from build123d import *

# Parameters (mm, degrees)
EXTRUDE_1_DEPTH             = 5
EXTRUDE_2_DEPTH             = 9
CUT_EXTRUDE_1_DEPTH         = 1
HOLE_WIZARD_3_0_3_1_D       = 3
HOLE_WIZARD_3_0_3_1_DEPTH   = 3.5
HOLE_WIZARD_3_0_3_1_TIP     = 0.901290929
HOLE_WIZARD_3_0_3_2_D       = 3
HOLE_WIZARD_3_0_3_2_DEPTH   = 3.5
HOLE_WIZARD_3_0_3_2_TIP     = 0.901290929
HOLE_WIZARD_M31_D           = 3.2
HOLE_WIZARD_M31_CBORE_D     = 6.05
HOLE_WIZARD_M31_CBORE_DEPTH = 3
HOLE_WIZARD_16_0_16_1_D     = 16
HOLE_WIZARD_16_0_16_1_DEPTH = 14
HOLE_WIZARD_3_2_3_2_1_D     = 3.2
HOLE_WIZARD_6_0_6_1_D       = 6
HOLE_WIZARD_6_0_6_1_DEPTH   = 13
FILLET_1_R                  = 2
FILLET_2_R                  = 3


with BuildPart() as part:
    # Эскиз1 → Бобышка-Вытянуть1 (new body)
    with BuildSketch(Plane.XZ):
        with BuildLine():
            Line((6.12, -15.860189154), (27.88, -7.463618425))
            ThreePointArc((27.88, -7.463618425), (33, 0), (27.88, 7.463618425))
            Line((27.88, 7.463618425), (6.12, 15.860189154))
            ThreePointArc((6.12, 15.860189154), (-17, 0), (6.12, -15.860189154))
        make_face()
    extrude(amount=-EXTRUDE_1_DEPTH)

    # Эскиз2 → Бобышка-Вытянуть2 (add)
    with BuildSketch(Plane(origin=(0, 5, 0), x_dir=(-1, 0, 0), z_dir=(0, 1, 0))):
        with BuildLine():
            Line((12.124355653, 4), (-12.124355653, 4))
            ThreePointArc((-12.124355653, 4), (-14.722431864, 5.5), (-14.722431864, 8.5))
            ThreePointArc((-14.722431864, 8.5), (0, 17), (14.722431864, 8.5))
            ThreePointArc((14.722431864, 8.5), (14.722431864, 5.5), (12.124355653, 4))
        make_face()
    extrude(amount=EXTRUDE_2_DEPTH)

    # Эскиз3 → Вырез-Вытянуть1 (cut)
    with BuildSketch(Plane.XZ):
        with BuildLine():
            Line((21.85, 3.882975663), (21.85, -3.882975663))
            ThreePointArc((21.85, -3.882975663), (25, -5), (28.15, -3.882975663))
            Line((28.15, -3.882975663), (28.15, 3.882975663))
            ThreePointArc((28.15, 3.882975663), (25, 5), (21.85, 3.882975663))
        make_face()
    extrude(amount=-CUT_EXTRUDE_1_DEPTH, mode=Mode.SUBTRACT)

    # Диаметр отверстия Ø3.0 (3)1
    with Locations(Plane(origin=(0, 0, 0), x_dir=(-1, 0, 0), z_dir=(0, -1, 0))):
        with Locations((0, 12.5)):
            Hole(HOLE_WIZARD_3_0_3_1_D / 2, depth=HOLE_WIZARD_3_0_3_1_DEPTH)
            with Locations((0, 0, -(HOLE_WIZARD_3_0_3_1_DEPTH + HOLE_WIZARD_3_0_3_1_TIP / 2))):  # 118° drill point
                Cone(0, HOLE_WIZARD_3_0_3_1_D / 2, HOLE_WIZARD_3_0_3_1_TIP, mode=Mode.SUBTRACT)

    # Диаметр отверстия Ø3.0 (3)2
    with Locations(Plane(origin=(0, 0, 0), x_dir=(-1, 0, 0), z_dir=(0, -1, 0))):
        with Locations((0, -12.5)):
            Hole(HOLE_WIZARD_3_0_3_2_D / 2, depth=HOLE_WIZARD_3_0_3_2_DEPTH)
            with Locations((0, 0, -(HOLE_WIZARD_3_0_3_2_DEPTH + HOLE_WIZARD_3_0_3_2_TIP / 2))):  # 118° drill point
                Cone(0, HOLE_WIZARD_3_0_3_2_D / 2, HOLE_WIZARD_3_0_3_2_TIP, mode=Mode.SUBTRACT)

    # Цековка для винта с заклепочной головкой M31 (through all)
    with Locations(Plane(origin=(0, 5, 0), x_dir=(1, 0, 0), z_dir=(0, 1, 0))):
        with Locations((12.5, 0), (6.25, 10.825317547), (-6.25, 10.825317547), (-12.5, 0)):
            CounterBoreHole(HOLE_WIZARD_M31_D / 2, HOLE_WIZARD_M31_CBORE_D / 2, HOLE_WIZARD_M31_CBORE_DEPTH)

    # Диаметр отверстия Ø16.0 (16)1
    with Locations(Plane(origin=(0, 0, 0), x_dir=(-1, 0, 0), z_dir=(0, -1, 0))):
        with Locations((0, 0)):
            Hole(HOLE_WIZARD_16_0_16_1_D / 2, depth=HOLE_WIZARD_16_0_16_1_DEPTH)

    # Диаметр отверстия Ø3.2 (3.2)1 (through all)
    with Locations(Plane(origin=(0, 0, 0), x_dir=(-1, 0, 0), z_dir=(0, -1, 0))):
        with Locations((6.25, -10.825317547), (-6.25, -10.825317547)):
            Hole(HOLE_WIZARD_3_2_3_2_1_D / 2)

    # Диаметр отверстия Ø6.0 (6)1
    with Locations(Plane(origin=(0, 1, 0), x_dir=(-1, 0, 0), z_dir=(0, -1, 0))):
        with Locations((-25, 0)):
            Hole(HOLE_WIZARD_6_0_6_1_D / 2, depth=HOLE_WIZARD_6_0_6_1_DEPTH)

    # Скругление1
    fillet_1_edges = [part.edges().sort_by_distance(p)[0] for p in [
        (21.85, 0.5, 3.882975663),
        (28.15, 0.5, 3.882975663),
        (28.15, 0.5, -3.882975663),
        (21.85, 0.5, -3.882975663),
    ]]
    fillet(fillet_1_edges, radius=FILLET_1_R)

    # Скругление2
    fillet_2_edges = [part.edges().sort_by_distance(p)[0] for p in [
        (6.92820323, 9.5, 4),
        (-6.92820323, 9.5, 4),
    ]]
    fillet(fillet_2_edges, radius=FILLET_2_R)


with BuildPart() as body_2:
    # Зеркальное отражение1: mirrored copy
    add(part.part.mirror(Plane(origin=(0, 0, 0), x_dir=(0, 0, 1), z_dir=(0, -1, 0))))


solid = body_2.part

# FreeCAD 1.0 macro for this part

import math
import FreeCAD as App
import Part
import Sketcher
from FreeCAD import Vector
Q = App.Units.Quantity


def edges_at(feature, points):
    """Names of the edges that pass closest to the given points."""
    edges = feature.Shape.Edges
    near = lambda p: min(range(len(edges)), key=lambda i: edges[i].distToShape(Part.Vertex(*p))[0])
    return sorted({f"Edge{near(p) + 1}" for p in points})

doc = App.newDocument("Part")
body = doc.addObject("PartDesign::Body", "Body")

sketch1 = doc.addObject("Sketcher::SketchObject", "Sketch")
body.addObject(sketch1)
sketch1.AttachmentSupport = (doc.XZ_Plane, [""])
sketch1.MapMode = "FlatFace"
sketch1.addGeometry(Part.LineSegment(Vector(6.12, -15.860189, 0), Vector(27.88, -7.463618, 0)), False)
sketch1.addGeometry(Part.ArcOfCircle(Part.Circle(Vector(25, 0, 0), Vector(0, 0, 1), 8), math.radians(-68.899804), math.radians(68.899804)), False)
sketch1.addGeometry(Part.LineSegment(Vector(27.88, 7.463618, 0), Vector(6.12, 15.860189, 0)), False)
sketch1.addGeometry(Part.ArcOfCircle(Part.Circle(Vector(0, 0, 0), Vector(0, 0, 1), 17), math.radians(68.899804), math.radians(291.100196)), False)
sketch1.addConstraint(Sketcher.Constraint("Tangent", 0, 2, 1, 1))
sketch1.addConstraint(Sketcher.Constraint("Tangent", 1, 2, 2, 1))
sketch1.addConstraint(Sketcher.Constraint("Tangent", 2, 2, 3, 1))
sketch1.addConstraint(Sketcher.Constraint("Tangent", 3, 2, 0, 1))
sketch1.addConstraint(Sketcher.Constraint("Coincident", 3, 3, -1, 1))
sketch1.addConstraint(Sketcher.Constraint("PointOnObject", 1, 3, -1))
sketch1.addConstraint(Sketcher.Constraint("Radius", 1, Q("8 mm")))
sketch1.addConstraint(Sketcher.Constraint("Radius", 3, Q("17 mm")))
sketch1.addConstraint(Sketcher.Constraint("DistanceX", -1, 1, 1, 3, Q("25 mm")))
pad1 = doc.addObject("PartDesign::Pad", "Pad")
body.addObject(pad1)
pad1.Profile = sketch1
pad1.Length = 5
pad1.Reversed = True

sketch2 = doc.addObject("Sketcher::SketchObject", "Sketch001")
body.addObject(sketch2)
sketch2.AttachmentSupport = (doc.XZ_Plane, [""])
sketch2.MapMode = "FlatFace"
sketch2.AttachmentOffset = App.Placement(Vector(0, 0, -5), App.Rotation())
sketch2.addGeometry(Part.LineSegment(Vector(12.124356, 4, 0), Vector(-12.124356, 4, 0)), False)
sketch2.addGeometry(Part.ArcOfCircle(Part.Circle(Vector(-12.124356, 7, 0), Vector(0, 0, 1), 3), math.radians(150), math.radians(270)), False)
sketch2.addGeometry(Part.ArcOfCircle(Part.Circle(Vector(0, 0, 0), Vector(0, 0, 1), 17), math.radians(30), math.radians(150)), False)
sketch2.addGeometry(Part.ArcOfCircle(Part.Circle(Vector(12.124356, 7, 0), Vector(0, 0, 1), 3), math.radians(-90), math.radians(30)), False)
sketch2.addConstraint(Sketcher.Constraint("Tangent", 0, 2, 1, 2))
sketch2.addConstraint(Sketcher.Constraint("Tangent", 1, 1, 2, 2))
sketch2.addConstraint(Sketcher.Constraint("Tangent", 2, 1, 3, 2))
sketch2.addConstraint(Sketcher.Constraint("Tangent", 3, 1, 0, 1))
sketch2.addConstraint(Sketcher.Constraint("Horizontal", 0))
sketch2.addConstraint(Sketcher.Constraint("Coincident", 2, 3, -1, 1))
sketch2.addConstraint(Sketcher.Constraint("Equal", 1, 3))
sketch2.addConstraint(Sketcher.Constraint("Radius", 1, Q("3 mm")))
sketch2.addConstraint(Sketcher.Constraint("Radius", 2, Q("17 mm")))
sketch2.addConstraint(Sketcher.Constraint("DistanceY", -1, 1, 1, 3, Q("7 mm")))
pad2 = doc.addObject("PartDesign::Pad", "Pad001")
body.addObject(pad2)
pad2.Profile = sketch2
pad2.Length = 9
pad2.Reversed = True

sketch3 = doc.addObject("Sketcher::SketchObject", "Sketch002")
body.addObject(sketch3)
sketch3.AttachmentSupport = (doc.XZ_Plane, [""])
sketch3.MapMode = "FlatFace"
sketch3.addGeometry(Part.LineSegment(Vector(21.85, 3.882976, 0), Vector(21.85, -3.882976, 0)), False)
sketch3.addGeometry(Part.ArcOfCircle(Part.Circle(Vector(25, 0, 0), Vector(0, 0, 1), 5), math.radians(-129.050123), math.radians(-50.949877)), False)
sketch3.addGeometry(Part.LineSegment(Vector(28.15, -3.882976, 0), Vector(28.15, 3.882976, 0)), False)
sketch3.addGeometry(Part.ArcOfCircle(Part.Circle(Vector(25, 0, 0), Vector(0, 0, 1), 5), math.radians(50.949877), math.radians(129.050123)), False)
sketch3.addConstraint(Sketcher.Constraint("Coincident", 0, 2, 1, 1))
sketch3.addConstraint(Sketcher.Constraint("Coincident", 1, 2, 2, 1))
sketch3.addConstraint(Sketcher.Constraint("Coincident", 2, 2, 3, 1))
sketch3.addConstraint(Sketcher.Constraint("Coincident", 3, 2, 0, 1))
sketch3.addConstraint(Sketcher.Constraint("Vertical", 0))
sketch3.addConstraint(Sketcher.Constraint("Vertical", 2))
sketch3.addConstraint(Sketcher.Constraint("Coincident", 3, 3, 1, 3))
sketch3.addConstraint(Sketcher.Constraint("Equal", 1, 3))
sketch3.addConstraint(Sketcher.Constraint("PointOnObject", 1, 3, -1))
sketch3.addConstraint(Sketcher.Constraint("Horizontal", 0, 2, 1, 2))
sketch3.addConstraint(Sketcher.Constraint("Radius", 1, Q("5 mm")))
sketch3.addConstraint(Sketcher.Constraint("DistanceX", -1, 1, 1, 3, Q("25 mm")))
sketch3.addConstraint(Sketcher.Constraint("DistanceX", 0, 2, 1, 2, Q("6.3 mm")))
pocket1 = doc.addObject("PartDesign::Pocket", "Pocket")
body.addObject(pocket1)
pocket1.Profile = sketch3
pocket1.Length = 1

sketch4 = doc.addObject("Sketcher::SketchObject", "Sketch003")
body.addObject(sketch4)
sketch4.AttachmentSupport = (doc.XZ_Plane, [""])
sketch4.MapMode = "FlatFace"
sketch4.addGeometry(Part.Circle(Vector(0, -12.5, 0), Vector(0, 0, 1), 1.5), False)
sketch4.addConstraint(Sketcher.Constraint("PointOnObject", 0, 3, -2))
sketch4.addConstraint(Sketcher.Constraint("Diameter", 0, Q("3 mm")))
sketch4.addConstraint(Sketcher.Constraint("DistanceY", 0, 3, -1, 1, Q("12.5 mm")))
doc.recompute()
hole = doc.addObject("PartDesign::Hole", "Hole")
body.addObject(hole)
hole.Profile = sketch4
hole.ThreadType = "None"
hole.Diameter = 3
hole.DepthType = "Dimension"
hole.Depth = 3.5
hole.DrillPoint = "Angled"
hole.DrillPointAngle = 118

sketch5 = doc.addObject("Sketcher::SketchObject", "Sketch004")
body.addObject(sketch5)
sketch5.AttachmentSupport = (doc.XZ_Plane, [""])
sketch5.MapMode = "FlatFace"
sketch5.addGeometry(Part.Circle(Vector(0, 12.5, 0), Vector(0, 0, 1), 1.5), False)
sketch5.addConstraint(Sketcher.Constraint("PointOnObject", 0, 3, -2))
sketch5.addConstraint(Sketcher.Constraint("Diameter", 0, Q("3 mm")))
sketch5.addConstraint(Sketcher.Constraint("DistanceY", -1, 1, 0, 3, Q("12.5 mm")))
doc.recompute()
hole2 = doc.addObject("PartDesign::Hole", "Hole001")
body.addObject(hole2)
hole2.Profile = sketch5
hole2.ThreadType = "None"
hole2.Diameter = 3
hole2.DepthType = "Dimension"
hole2.Depth = 3.5
hole2.DrillPoint = "Angled"
hole2.DrillPointAngle = 118

sketch6 = doc.addObject("Sketcher::SketchObject", "Sketch005")
body.addObject(sketch6)
sketch6.AttachmentSupport = (doc.XZ_Plane, [""])
sketch6.MapMode = "FlatFace"
sketch6.AttachmentOffset = App.Placement(Vector(0, 0, -5), App.Rotation())
sketch6.addGeometry(Part.Circle(Vector(12.5, 0, 0), Vector(0, 0, 1), 1.6), False)
sketch6.addGeometry(Part.Circle(Vector(6.25, -10.825318, 0), Vector(0, 0, 1), 1.6), False)
sketch6.addGeometry(Part.Circle(Vector(-6.25, -10.825318, 0), Vector(0, 0, 1), 1.6), False)
sketch6.addGeometry(Part.Circle(Vector(-12.5, 0, 0), Vector(0, 0, 1), 1.6), False)
sketch6.addConstraint(Sketcher.Constraint("Equal", 0, 1))
sketch6.addConstraint(Sketcher.Constraint("Equal", 1, 2))
sketch6.addConstraint(Sketcher.Constraint("Equal", 2, 3))
sketch6.addConstraint(Sketcher.Constraint("Symmetric", 0, 3, 3, 3, -1, 1))
sketch6.addConstraint(Sketcher.Constraint("Symmetric", 1, 3, 2, 3, -2))
sketch6.addConstraint(Sketcher.Constraint("PointOnObject", 0, 3, -1))
sketch6.addConstraint(Sketcher.Constraint("Diameter", 0, Q("3.2 mm")))
sketch6.addConstraint(Sketcher.Constraint("DistanceX", 3, 3, 0, 3, Q("25 mm")))
sketch6.addConstraint(Sketcher.Constraint("DistanceX", 2, 3, 1, 3, Q("12.5 mm")))
sketch6.addConstraint(Sketcher.Constraint("DistanceY", 1, 3, -1, 1, Q("10.825318 mm")))
doc.recompute()
hole3 = doc.addObject("PartDesign::Hole", "Hole002")
body.addObject(hole3)
hole3.Profile = sketch6
hole3.ThreadType = "None"
hole3.Diameter = 3.2
hole3.DepthType = "ThroughAll"
hole3.HoleCutType = "Counterbore"
hole3.HoleCutDiameter = 6.05
hole3.HoleCutDepth = 3
hole3.Reversed = True

sketch7 = doc.addObject("Sketcher::SketchObject", "Sketch006")
body.addObject(sketch7)
sketch7.AttachmentSupport = (doc.XZ_Plane, [""])
sketch7.MapMode = "FlatFace"
sketch7.addGeometry(Part.Circle(Vector(0, 0, 0), Vector(0, 0, 1), 8), False)
sketch7.addConstraint(Sketcher.Constraint("Coincident", 0, 3, -1, 1))
sketch7.addConstraint(Sketcher.Constraint("Diameter", 0, Q("16 mm")))
doc.recompute()
hole4 = doc.addObject("PartDesign::Hole", "Hole003")
body.addObject(hole4)
hole4.Profile = sketch7
hole4.ThreadType = "None"
hole4.Diameter = 16
hole4.DepthType = "Dimension"
hole4.Depth = 14
hole4.DrillPoint = "Flat"

sketch8 = doc.addObject("Sketcher::SketchObject", "Sketch007")
body.addObject(sketch8)
sketch8.AttachmentSupport = (doc.XZ_Plane, [""])
sketch8.MapMode = "FlatFace"
sketch8.addGeometry(Part.Circle(Vector(-6.25, 10.825318, 0), Vector(0, 0, 1), 1.6), False)
sketch8.addGeometry(Part.Circle(Vector(6.25, 10.825318, 0), Vector(0, 0, 1), 1.6), False)
sketch8.addConstraint(Sketcher.Constraint("Equal", 0, 1))
sketch8.addConstraint(Sketcher.Constraint("Symmetric", 0, 3, 1, 3, -2))
sketch8.addConstraint(Sketcher.Constraint("Diameter", 0, Q("3.2 mm")))
sketch8.addConstraint(Sketcher.Constraint("DistanceX", 0, 3, 1, 3, Q("12.5 mm")))
sketch8.addConstraint(Sketcher.Constraint("DistanceY", -1, 1, 0, 3, Q("10.825318 mm")))
doc.recompute()
hole5 = doc.addObject("PartDesign::Hole", "Hole004")
body.addObject(hole5)
hole5.Profile = sketch8
hole5.ThreadType = "None"
hole5.Diameter = 3.2
hole5.DepthType = "ThroughAll"

sketch9 = doc.addObject("Sketcher::SketchObject", "Sketch008")
body.addObject(sketch9)
sketch9.AttachmentSupport = (doc.XZ_Plane, [""])
sketch9.MapMode = "FlatFace"
sketch9.AttachmentOffset = App.Placement(Vector(0, 0, -1), App.Rotation())
sketch9.addGeometry(Part.Circle(Vector(25, 0, 0), Vector(0, 0, 1), 3), False)
sketch9.addConstraint(Sketcher.Constraint("PointOnObject", 0, 3, -1))
sketch9.addConstraint(Sketcher.Constraint("Diameter", 0, Q("6 mm")))
sketch9.addConstraint(Sketcher.Constraint("DistanceX", -1, 1, 0, 3, Q("25 mm")))
doc.recompute()
hole6 = doc.addObject("PartDesign::Hole", "Hole005")
body.addObject(hole6)
hole6.Profile = sketch9
hole6.ThreadType = "None"
hole6.Diameter = 6
hole6.DepthType = "Dimension"
hole6.Depth = 13
hole6.DrillPoint = "Flat"
doc.recompute()

fillet = doc.addObject("PartDesign::Fillet", "Fillet")
body.addObject(fillet)
fillet.Base = (hole6, edges_at(hole6, [
    (21.85, 0.5, 3.883),
    (28.15, 0.5, 3.883),
    (28.15, 0.5, -3.883),
    (21.85, 0.5, -3.883),
]))
fillet.Radius = 2
doc.recompute()

fillet2 = doc.addObject("PartDesign::Fillet", "Fillet001")
body.addObject(fillet2)
fillet2.Base = (fillet, edges_at(fillet, [(6.928, 9.5, 4), (-6.928, 9.5, 4)]))
fillet2.Radius = 3
body2 = doc.addObject("PartDesign::Body", "Body001")
doc.recompute()

mirroring = doc.addObject("Part::Mirroring", "Mirroring")
mirroring.Source = body
mirroring.Base = Vector(0, 0, 0)
mirroring.Normal = Vector(0, -1, 0)
body2.BaseFeature = mirroring
doc.recompute()
body.Visibility = False
mirroring.Visibility = False

doc.recompute()
